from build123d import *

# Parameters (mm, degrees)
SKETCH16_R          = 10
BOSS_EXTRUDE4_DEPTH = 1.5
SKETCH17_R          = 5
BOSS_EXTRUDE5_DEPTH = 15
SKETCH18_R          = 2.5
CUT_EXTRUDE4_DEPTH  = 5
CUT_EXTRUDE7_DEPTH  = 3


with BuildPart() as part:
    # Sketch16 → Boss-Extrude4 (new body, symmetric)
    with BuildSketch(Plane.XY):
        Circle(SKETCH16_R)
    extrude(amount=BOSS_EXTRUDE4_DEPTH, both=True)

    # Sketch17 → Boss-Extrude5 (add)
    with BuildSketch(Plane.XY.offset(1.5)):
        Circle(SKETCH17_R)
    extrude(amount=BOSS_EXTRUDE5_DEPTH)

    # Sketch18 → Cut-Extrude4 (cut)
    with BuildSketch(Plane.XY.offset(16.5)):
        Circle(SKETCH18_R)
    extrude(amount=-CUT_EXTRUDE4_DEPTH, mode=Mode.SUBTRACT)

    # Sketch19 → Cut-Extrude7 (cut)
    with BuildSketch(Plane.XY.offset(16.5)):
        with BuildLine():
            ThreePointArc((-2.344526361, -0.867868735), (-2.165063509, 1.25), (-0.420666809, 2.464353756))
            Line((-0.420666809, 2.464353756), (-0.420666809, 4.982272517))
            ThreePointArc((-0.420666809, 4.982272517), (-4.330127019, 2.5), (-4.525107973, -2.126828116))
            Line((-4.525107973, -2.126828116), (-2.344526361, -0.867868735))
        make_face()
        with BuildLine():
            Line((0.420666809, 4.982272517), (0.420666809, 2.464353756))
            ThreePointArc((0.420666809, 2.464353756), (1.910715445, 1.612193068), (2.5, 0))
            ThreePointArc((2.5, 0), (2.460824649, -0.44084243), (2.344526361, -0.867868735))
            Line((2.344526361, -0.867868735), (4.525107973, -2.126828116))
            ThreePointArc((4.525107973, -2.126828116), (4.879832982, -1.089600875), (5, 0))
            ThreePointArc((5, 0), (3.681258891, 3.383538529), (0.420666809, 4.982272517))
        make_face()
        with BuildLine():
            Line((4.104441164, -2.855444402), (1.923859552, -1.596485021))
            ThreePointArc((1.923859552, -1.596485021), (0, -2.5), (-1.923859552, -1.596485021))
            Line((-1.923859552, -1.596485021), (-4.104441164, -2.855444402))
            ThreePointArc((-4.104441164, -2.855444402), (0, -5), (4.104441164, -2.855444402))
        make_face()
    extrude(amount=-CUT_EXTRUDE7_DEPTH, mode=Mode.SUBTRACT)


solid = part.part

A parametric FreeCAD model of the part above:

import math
import FreeCAD as App
import Part
import Sketcher

V = App.Vector
Q = App.Units.Quantity

doc = App.newDocument("Part")
params = doc.addObject("Spreadsheet::Sheet", "Params")
for row, (alias, value) in enumerate([
    ("sketch1_diameter", "20 mm"),
    ("pad1_length", "3 mm"),
    ("sketch2_diameter", "10 mm"),
    ("pad2_length", "15 mm"),
    ("sketch3_diameter", "5 mm"),
    ("pocket1_length", "5 mm"),
    ("sketch4_radius", "5 mm"),
    ("sketch4_radius2", "2.5 mm"),
    ("pocket2_length", "3 mm"),
], start=1):
    params.set(f"A{row}", alias)
    params.set(f"B{row}", "=" + value)
    params.setAlias(f"B{row}", alias)

body = doc.addObject("PartDesign::Body", "Body")

# Sketch on XY plane
sketch1 = doc.addObject("Sketcher::SketchObject", "Sketch")
body.addObject(sketch1)
sketch1.AttachmentSupport = (doc.XY_Plane, [""])
sketch1.MapMode = "FlatFace"
sketch1.addGeometry(Part.Circle(V(0, 0, 0), V(0, 0, 1), 10), False)
sketch1.addConstraint([
    Sketcher.Constraint("Coincident", 0, 3, -1, 1),
    Sketcher.Constraint("Diameter", 0, 20.0),
])
sketch1.setExpression("Constraints[1]", "Params.sketch1_diameter")
pad1 = doc.addObject("PartDesign::Pad", "Pad")
body.addObject(pad1)
pad1.Profile = sketch1
pad1.setExpression("Length", "Params.pad1_length")
pad1.Midplane = True

# Sketch on XY plane
sketch2 = doc.addObject("Sketcher::SketchObject", "Sketch001")
body.addObject(sketch2)
sketch2.AttachmentSupport = (doc.XY_Plane, [""])
sketch2.MapMode = "FlatFace"
sketch2.AttachmentOffset = App.Placement(V(0, 0, 1.5), App.Rotation())
sketch2.addGeometry(Part.Circle(V(0, 0, 0), V(0, 0, 1), 5), False)
sketch2.addConstraint([
    Sketcher.Constraint("Coincident", 0, 3, -1, 1),
    Sketcher.Constraint("Diameter", 0, 10.0),
])
sketch2.setExpression("Constraints[1]", "Params.sketch2_diameter")
pad2 = doc.addObject("PartDesign::Pad", "Pad001")
body.addObject(pad2)
pad2.Profile = sketch2
pad2.setExpression("Length", "Params.pad2_length")

# Sketch on XY plane
sketch3 = doc.addObject("Sketcher::SketchObject", "Sketch002")
body.addObject(sketch3)
sketch3.AttachmentSupport = (doc.XY_Plane, [""])
sketch3.MapMode = "FlatFace"
sketch3.AttachmentOffset = App.Placement(V(0, 0, 16.5), App.Rotation())
sketch3.addGeometry(Part.Circle(V(0, 0, 0), V(0, 0, 1), 2.5), False)
sketch3.addConstraint([
    Sketcher.Constraint("Coincident", 0, 3, -1, 1),
    Sketcher.Constraint("Diameter", 0, 5.0),
])
sketch3.setExpression("Constraints[1]", "Params.sketch3_diameter")
pocket1 = doc.addObject("PartDesign::Pocket", "Pocket")
body.addObject(pocket1)
pocket1.Profile = sketch3
pocket1.setExpression("Length", "Params.pocket1_length")

# Sketch on XY plane
sketch4 = doc.addObject("Sketcher::SketchObject", "Sketch003")
body.addObject(sketch4)
sketch4.AttachmentSupport = (doc.XY_Plane, [""])
sketch4.MapMode = "FlatFace"
sketch4.AttachmentOffset = App.Placement(V(0, 0, 16.5), App.Rotation())
sketch4.addGeometry([
    Part.ArcOfCircle(Part.Circle(V(0, 0, 0), V(0, 0, 1), 2.5), math.radians(99.687058), math.radians(200.312942)),  # 0
    Part.LineSegment(V(-0.420667, 2.464354, 0), V(-0.420667, 4.982273, 0)),  # 1
    Part.ArcOfCircle(Part.Circle(V(0, 0, 0), V(0, 0, 1), 5), math.radians(94.826192), math.radians(205.173808)),  # 2
    Part.LineSegment(V(-4.525108, -2.126828, 0), V(-2.344526, -0.867869, 0)),  # 3
    Part.LineSegment(V(0.420667, 4.982273, 0), V(0.420667, 2.464354, 0)),  # 4
    Part.ArcOfCircle(Part.Circle(V(0, 0, 0), V(0, 0, 1), 2.5), math.radians(0), math.radians(80.312942)),  # 5
    Part.ArcOfCircle(Part.Circle(V(0, 0, 0), V(0, 0, 1), 2.5), math.radians(-20.312942), math.radians(0)),  # 6
    Part.LineSegment(V(2.344526, -0.867869, 0), V(4.525108, -2.126828, 0)),  # 7
    Part.ArcOfCircle(Part.Circle(V(0, 0, 0), V(0, 0, 1), 5), math.radians(-25.173808), math.radians(0)),  # 8
    Part.ArcOfCircle(Part.Circle(V(0, 0, 0), V(0, 0, 1), 5), math.radians(0), math.radians(85.173808)),  # 9
    Part.LineSegment(V(4.104441, -2.855444, 0), V(1.92386, -1.596485, 0)),  # 10
    Part.ArcOfCircle(Part.Circle(V(0, 0, 0), V(0, 0, 1), 2.5), math.radians(-140.312942), math.radians(-39.687058)),  # 11
    Part.LineSegment(V(-1.92386, -1.596485, 0), V(-4.104441, -2.855444, 0)),  # 12
    Part.ArcOfCircle(Part.Circle(V(0, 0, 0), V(0, 0, 1), 5), math.radians(-145.173808), math.radians(-34.826192)),  # 13
], False)
sketch4.addConstraint([
    Sketcher.Constraint("Coincident", 0, 1, 1, 1),
    Sketcher.Constraint("Coincident", 1, 2, 2, 1),
    Sketcher.Constraint("Coincident", 2, 2, 3, 1),
    Sketcher.Constraint("Coincident", 3, 2, 0, 2),
    Sketcher.Constraint("Coincident", 4, 2, 5, 2),
    Sketcher.Constraint("Tangent", 5, 1, 6, 2),
    Sketcher.Constraint("Coincident", 6, 1, 7, 1),
    Sketcher.Constraint("Coincident", 7, 2, 8, 1),
    Sketcher.Constraint("Tangent", 8, 2, 9, 1),
    Sketcher.Constraint("Coincident", 9, 2, 4, 1),
    Sketcher.Constraint("Coincident", 10, 2, 11, 2),
    Sketcher.Constraint("Coincident", 11, 1, 12, 1),
    Sketcher.Constraint("Coincident", 12, 2, 13, 1),
    Sketcher.Constraint("Coincident", 13, 2, 10, 1),
    Sketcher.Constraint("Vertical", 1),
    Sketcher.Constraint("Vertical", 4),
    Sketcher.Constraint("Coincident", 0, 3, -1, 1),
    Sketcher.Constraint("Coincident", 2, 3, -1, 1),
    Sketcher.Constraint("Coincident", 5, 3, -1, 1),
    Sketcher.Constraint("Coincident", 8, 3, -1, 1),
    Sketcher.Constraint("Coincident", 11, 3, -1, 1),
    Sketcher.Constraint("Coincident", 13, 3, -1, 1),
    Sketcher.Constraint("Equal", 0, 5),
    Sketcher.Constraint("Equal", 5, 6),
    Sketcher.Constraint("Equal", 2, 8),
    Sketcher.Constraint("Equal", 8, 9),
    Sketcher.Constraint("Equal", 6, 11),
    Sketcher.Constraint("Equal", 9, 13),
    Sketcher.Constraint("PointOnObject", 5, 1, -1),
    Sketcher.Constraint("PointOnObject", 8, 2, -1),
    Sketcher.Constraint("Parallel", 7, 10),
    Sketcher.Constraint("Parallel", 3, 12),
    Sketcher.Constraint("Horizontal", 0, 1, 4, 2),
    Sketcher.Constraint("Horizontal", 3, 2, 6, 1),
    Sketcher.Constraint("Horizontal", 2, 2, 7, 2),
    Sketcher.Constraint("Horizontal", 10, 2, 11, 1),
    Sketcher.Constraint("Equal", 7, 10),
    Sketcher.Constraint("Radius", 2, 5.0),
    Sketcher.Constraint("Radius", 0, 2.5),
    Sketcher.Constraint("Angle", 3, Q("30 deg")),
    Sketcher.Constraint("DistanceY", 1, 1, 1, 2, 2.517919),
    Sketcher.Constraint("Distance", 3, 2.517919),
])
sketch4.setExpression("Constraints[37]", "Params.sketch4_radius")
sketch4.setExpression("Constraints[38]", "Params.sketch4_radius2")
pocket2 = doc.addObject("PartDesign::Pocket", "Pocket001")
body.addObject(pocket2)
pocket2.Profile = sketch4
pocket2.setExpression("Length", "Params.pocket2_length")

doc.recompute()
